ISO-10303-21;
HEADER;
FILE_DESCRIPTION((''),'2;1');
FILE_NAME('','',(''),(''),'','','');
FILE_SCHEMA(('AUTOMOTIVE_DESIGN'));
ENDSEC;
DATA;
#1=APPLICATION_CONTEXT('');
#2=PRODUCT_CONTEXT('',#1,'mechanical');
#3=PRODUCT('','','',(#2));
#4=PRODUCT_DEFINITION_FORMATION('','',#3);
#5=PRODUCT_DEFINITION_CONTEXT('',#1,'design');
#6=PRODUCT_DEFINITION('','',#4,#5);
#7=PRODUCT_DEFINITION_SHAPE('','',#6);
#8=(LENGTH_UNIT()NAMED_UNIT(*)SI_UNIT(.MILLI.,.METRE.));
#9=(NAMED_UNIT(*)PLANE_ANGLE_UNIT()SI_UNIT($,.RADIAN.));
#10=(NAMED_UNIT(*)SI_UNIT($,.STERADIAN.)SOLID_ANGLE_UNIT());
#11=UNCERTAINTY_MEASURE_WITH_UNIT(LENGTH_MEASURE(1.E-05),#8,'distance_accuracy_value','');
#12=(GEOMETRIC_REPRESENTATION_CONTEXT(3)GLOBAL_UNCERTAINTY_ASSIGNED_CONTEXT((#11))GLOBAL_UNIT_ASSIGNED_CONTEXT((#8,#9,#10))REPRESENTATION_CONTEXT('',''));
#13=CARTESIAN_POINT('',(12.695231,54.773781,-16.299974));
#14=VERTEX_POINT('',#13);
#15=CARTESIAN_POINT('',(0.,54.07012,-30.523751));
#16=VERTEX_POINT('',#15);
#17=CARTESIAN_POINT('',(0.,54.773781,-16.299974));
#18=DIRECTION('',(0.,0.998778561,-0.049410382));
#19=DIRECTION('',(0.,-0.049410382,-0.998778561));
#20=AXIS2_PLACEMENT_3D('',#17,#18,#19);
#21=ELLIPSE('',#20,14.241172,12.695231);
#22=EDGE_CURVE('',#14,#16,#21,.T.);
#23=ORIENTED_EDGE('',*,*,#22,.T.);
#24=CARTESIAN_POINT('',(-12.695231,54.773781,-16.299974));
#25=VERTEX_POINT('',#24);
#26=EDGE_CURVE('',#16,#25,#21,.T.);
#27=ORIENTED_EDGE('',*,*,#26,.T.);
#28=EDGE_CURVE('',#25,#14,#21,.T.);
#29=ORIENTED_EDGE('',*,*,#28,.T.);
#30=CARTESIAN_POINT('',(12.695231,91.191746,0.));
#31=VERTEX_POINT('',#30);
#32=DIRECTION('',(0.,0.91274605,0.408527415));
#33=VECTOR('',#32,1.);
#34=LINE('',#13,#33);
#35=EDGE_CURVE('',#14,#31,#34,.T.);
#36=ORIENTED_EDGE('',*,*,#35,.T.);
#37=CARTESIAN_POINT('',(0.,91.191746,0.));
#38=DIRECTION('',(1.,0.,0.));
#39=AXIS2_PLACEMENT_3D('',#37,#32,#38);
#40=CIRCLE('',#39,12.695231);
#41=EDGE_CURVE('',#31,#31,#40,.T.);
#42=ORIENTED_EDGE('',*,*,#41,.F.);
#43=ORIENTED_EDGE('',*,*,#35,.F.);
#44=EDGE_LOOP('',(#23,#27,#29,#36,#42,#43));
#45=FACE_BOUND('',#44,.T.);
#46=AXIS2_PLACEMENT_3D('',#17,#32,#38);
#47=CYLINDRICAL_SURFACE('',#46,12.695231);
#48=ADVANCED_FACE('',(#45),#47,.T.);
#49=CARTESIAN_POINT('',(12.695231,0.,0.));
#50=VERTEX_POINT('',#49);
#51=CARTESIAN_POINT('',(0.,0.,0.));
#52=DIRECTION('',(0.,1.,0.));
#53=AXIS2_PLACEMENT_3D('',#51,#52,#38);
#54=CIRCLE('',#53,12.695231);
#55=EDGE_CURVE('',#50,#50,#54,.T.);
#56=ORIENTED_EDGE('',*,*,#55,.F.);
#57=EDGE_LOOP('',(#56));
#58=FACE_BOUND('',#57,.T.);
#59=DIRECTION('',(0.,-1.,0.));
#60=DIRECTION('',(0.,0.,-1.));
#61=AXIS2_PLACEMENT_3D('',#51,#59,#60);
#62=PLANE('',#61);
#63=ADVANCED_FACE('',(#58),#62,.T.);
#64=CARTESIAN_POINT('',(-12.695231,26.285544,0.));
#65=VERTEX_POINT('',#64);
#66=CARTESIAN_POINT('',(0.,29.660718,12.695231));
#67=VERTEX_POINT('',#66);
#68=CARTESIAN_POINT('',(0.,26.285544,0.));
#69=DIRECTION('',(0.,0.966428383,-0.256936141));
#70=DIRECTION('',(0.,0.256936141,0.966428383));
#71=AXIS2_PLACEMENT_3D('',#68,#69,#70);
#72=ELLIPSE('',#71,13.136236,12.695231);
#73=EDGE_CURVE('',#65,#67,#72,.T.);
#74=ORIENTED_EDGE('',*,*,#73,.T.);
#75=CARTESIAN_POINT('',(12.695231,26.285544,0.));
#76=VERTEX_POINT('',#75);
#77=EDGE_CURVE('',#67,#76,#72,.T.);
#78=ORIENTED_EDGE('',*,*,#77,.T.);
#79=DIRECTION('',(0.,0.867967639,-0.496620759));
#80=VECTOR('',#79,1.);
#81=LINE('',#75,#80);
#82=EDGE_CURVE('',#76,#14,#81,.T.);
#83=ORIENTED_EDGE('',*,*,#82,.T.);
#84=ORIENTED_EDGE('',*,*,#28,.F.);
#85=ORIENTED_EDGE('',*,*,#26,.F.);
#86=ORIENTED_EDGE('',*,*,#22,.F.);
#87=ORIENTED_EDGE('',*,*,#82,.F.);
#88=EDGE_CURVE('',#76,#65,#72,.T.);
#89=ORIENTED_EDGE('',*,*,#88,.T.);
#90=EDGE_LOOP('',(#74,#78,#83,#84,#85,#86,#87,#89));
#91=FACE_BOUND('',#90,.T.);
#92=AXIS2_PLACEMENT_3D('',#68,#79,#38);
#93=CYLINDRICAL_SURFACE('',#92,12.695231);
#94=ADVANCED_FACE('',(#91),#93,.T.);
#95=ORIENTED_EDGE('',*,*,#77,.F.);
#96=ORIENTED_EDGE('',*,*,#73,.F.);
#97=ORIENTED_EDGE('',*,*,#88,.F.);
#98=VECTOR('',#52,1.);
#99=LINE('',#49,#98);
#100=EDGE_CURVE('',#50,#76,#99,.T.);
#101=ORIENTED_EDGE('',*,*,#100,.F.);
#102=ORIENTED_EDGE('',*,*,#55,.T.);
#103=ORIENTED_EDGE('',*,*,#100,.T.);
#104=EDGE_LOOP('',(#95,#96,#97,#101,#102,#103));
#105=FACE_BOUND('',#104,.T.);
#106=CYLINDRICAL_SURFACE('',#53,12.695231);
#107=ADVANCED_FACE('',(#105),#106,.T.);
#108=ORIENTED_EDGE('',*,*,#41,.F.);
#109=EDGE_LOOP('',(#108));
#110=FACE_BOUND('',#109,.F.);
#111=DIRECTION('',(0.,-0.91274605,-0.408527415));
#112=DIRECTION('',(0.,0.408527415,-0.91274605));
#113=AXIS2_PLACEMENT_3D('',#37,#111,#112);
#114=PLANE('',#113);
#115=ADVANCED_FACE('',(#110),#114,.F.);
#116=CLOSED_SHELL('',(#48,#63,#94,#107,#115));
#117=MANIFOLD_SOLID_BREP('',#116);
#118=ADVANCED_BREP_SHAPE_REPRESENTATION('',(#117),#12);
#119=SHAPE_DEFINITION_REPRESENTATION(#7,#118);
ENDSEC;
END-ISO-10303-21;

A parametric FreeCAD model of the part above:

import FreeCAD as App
import Part
import Sketcher

V = App.Vector

doc = App.newDocument("Part")
body = doc.addObject("PartDesign::Body", "Body")

sketch1 = doc.addObject("Sketcher::SketchObject", "Sketch")
body.addObject(sketch1)
sketch1.AttachmentSupport = (doc.XZ_Plane, [""])
sketch1.MapMode = "FlatFace"
sketch1.addGeometry(Part.Circle(V(0, 0, 0), V(0, 0, 1), 12.695231), False)
sketch1.addConstraint([
    Sketcher.Constraint("Coincident", 0, 3, -1, 1),
    Sketcher.Constraint("Diameter", 0, 25.390463),
])

sketch2 = doc.addObject("Sketcher::SketchObject", "Sketch001")
body.addObject(sketch2)
sketch2.AttachmentSupport = (doc.YZ_Plane, [""])
sketch2.MapMode = "FlatFace"
sketch2.addGeometry([
    Part.LineSegment(V(0, 0, 0), V(26.285544, 0, 0)),
    Part.LineSegment(V(26.285544, 0, 0), V(54.773781, -16.299974, 0)),
    Part.LineSegment(V(54.773781, -16.299974, 0), V(91.191746, 0, 0)),
], False)
sketch2.addConstraint([
    Sketcher.Constraint("Coincident", 0, 2, 1, 1),
    Sketcher.Constraint("Coincident", 1, 2, 2, 1),
    Sketcher.Constraint("Horizontal", 0),
    Sketcher.Constraint("Coincident", 0, 1, -1, 1),
    Sketcher.Constraint("PointOnObject", 2, 2, -1),
    Sketcher.Constraint("Distance", 2, 39.89934),
    Sketcher.Constraint("DistanceX", 0, 1, 0, 2, 26.285544),
    Sketcher.Constraint("DistanceX", -1, 1, 1, 2, 54.773781),
    Sketcher.Constraint("Distance", 1, 32.821774),
])
doc.recompute()

additivepipe = doc.addObject("PartDesign::AdditivePipe", "AdditivePipe")
body.addObject(additivepipe)
additivepipe.Profile = sketch1
additivepipe.Spine = (sketch2, ["Edge1", "Edge2", "Edge3"])
additivepipe.Transition = "Right corner"

doc.recompute()
